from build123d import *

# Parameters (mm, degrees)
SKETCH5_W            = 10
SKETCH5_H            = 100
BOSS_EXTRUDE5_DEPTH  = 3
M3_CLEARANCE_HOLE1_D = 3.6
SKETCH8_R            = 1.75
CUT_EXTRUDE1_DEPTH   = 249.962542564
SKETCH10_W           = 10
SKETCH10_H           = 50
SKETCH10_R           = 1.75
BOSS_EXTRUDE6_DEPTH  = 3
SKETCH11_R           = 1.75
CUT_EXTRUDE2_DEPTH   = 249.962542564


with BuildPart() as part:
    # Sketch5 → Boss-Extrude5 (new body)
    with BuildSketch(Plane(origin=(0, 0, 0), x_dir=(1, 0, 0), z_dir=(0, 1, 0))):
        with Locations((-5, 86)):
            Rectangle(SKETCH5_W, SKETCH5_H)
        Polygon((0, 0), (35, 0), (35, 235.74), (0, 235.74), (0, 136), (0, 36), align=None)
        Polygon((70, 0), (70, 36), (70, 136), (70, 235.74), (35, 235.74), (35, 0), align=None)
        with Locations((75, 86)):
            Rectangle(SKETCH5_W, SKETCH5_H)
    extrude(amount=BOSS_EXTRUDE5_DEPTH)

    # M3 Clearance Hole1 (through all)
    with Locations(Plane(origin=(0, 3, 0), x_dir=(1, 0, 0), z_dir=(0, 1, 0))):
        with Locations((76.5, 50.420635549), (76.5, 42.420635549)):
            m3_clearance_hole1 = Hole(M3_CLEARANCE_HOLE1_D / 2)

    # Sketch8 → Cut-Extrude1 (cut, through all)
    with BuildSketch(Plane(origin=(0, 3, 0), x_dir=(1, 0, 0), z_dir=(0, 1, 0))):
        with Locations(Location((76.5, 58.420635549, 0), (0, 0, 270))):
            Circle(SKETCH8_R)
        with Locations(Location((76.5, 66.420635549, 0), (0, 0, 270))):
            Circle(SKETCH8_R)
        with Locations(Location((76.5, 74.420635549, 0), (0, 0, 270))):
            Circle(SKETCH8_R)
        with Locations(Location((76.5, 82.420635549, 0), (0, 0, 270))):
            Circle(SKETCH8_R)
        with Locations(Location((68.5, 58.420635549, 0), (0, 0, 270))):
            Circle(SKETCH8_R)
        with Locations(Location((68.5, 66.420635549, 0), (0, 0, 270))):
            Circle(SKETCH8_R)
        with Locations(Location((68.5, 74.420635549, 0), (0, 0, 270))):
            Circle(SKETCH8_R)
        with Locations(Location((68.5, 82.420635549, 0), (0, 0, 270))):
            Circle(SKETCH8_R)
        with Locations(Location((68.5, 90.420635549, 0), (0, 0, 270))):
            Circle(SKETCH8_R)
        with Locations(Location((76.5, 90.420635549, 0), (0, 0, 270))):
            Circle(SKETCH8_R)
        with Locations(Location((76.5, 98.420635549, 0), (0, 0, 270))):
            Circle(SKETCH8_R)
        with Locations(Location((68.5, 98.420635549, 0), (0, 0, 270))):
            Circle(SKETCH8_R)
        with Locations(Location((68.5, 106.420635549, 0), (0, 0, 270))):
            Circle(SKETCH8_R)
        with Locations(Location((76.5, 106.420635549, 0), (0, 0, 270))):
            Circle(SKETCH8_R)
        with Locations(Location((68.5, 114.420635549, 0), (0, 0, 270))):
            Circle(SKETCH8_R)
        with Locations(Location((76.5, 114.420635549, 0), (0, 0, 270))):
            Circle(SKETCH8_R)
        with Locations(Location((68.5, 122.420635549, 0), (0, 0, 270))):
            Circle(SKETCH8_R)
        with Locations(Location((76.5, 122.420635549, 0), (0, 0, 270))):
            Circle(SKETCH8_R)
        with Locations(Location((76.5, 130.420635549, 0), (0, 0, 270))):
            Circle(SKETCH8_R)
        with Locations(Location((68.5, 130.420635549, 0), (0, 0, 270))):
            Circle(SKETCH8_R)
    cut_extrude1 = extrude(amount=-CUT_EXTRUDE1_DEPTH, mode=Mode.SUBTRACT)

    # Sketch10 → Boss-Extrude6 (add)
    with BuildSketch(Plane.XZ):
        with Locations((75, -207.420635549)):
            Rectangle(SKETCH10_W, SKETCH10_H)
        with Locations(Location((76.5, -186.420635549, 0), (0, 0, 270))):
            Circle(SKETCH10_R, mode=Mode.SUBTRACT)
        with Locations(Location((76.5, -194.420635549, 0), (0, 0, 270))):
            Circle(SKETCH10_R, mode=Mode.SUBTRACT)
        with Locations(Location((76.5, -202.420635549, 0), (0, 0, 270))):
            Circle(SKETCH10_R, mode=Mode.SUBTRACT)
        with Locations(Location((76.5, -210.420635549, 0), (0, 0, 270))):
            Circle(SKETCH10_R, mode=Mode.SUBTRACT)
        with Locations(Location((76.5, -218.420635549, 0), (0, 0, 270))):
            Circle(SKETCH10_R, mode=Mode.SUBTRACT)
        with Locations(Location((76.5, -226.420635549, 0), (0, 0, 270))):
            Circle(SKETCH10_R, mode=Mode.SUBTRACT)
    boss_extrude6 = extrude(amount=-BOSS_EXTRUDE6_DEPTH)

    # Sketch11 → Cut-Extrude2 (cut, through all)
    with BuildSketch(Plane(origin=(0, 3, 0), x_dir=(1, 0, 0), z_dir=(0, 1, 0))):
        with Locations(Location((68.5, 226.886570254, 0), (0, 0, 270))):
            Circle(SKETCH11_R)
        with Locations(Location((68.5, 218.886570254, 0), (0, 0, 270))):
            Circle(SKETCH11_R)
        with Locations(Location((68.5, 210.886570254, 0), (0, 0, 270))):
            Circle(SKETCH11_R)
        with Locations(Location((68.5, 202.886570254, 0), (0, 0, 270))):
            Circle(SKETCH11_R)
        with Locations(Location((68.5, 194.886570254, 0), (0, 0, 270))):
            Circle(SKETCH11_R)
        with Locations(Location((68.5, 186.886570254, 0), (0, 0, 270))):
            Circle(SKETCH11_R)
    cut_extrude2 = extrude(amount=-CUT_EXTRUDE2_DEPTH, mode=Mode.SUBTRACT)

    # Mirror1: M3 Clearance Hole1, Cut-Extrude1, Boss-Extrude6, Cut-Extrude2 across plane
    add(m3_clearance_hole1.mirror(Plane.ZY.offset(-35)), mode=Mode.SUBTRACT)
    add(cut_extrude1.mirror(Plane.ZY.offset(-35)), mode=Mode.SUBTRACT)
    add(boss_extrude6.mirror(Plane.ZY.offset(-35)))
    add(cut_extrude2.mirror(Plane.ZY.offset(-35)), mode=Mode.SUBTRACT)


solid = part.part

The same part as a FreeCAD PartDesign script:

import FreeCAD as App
import Part
import Sketcher

V = App.Vector

doc = App.newDocument("Part")
body = doc.addObject("PartDesign::Body", "Body")

# Sketch on XZ plane
sketch1 = body.newObject("Sketcher::SketchObject", "Sketch")
sketch1.AttachmentSupport = (doc.getObject("XZ_Plane"), [""])
sketch1.MapMode = "FlatFace"
sketch1.addGeometry([
    Part.LineSegment(V(-10, -136, 0), V(-10, -36, 0)),  # 0
    Part.LineSegment(V(-10, -36, 0), V(0, -36, 0)),  # 1
    Part.LineSegment(V(0, -36, 0), V(0, 0, 0)),  # 2
    Part.LineSegment(V(0, 0, 0), V(70, 0, 0)),  # 3
    Part.LineSegment(V(70, 0, 0), V(70, -36, 0)),  # 4
    Part.LineSegment(V(70, -36, 0), V(80, -36, 0)),  # 5
    Part.LineSegment(V(80, -36, 0), V(80, -136, 0)),  # 6
    Part.LineSegment(V(80, -136, 0), V(70, -136, 0)),  # 7
    Part.LineSegment(V(70, -136, 0), V(70, -236, 0)),  # 8
    Part.LineSegment(V(70, -236, 0), V(0, -236, 0)),  # 9
    Part.LineSegment(V(0, -236, 0), V(0, -136, 0)),  # 10
    Part.LineSegment(V(0, -136, 0), V(-10, -136, 0)),  # 11
], False)
sketch1.addConstraint([
    Sketcher.Constraint("Coincident", 0, 2, 1, 1),
    Sketcher.Constraint("Coincident", 1, 2, 2, 1),
    Sketcher.Constraint("Coincident", 2, 2, 3, 1),
    Sketcher.Constraint("Coincident", 3, 2, 4, 1),
    Sketcher.Constraint("Coincident", 4, 2, 5, 1),
    Sketcher.Constraint("Coincident", 5, 2, 6, 1),
    Sketcher.Constraint("Coincident", 6, 2, 7, 1),
    Sketcher.Constraint("Coincident", 7, 2, 8, 1),
    Sketcher.Constraint("Coincident", 8, 2, 9, 1),
    Sketcher.Constraint("Coincident", 9, 2, 10, 1),
    Sketcher.Constraint("Coincident", 10, 2, 11, 1),
    Sketcher.Constraint("Coincident", 11, 2, 0, 1),
    Sketcher.Constraint("Vertical", 0),
    Sketcher.Constraint("Horizontal", 1),
    Sketcher.Constraint("Vertical", 2),
    Sketcher.Constraint("Horizontal", 3),
    Sketcher.Constraint("Vertical", 4),
    Sketcher.Constraint("Horizontal", 5),
    Sketcher.Constraint("Vertical", 6),
    Sketcher.Constraint("Horizontal", 7),
    Sketcher.Constraint("Vertical", 8),
    Sketcher.Constraint("Horizontal", 9),
    Sketcher.Constraint("Vertical", 10),
    Sketcher.Constraint("Horizontal", 11),
    Sketcher.Constraint("Coincident", 2, 2, -1, 1),
    Sketcher.Constraint("PointOnObject", 9, 2, -2),
    Sketcher.Constraint("Horizontal", 1, 2, 4, 2),
    Sketcher.Constraint("Horizontal", 7, 2, 10, 2),
    Sketcher.Constraint("Vertical", 4, 2, 7, 2),
    Sketcher.Constraint("Equal", 1, 5),
    Sketcher.Constraint("DistanceX", 1, 1, 1, 2, 10.0),
    Sketcher.Constraint("DistanceX", 3, 1, 3, 2, 70.0),
    Sketcher.Constraint("DistanceY", 0, 1, 0, 2, 100.0),
    Sketcher.Constraint("DistanceY", 2, 1, 2, 2, 36.0),
    Sketcher.Constraint("DistanceY", 8, 2, 8, 1, 99.74),
])
pad1 = body.newObject("PartDesign::Pad", "Pad")
pad1.Profile = sketch1
pad1.Length = 3
pad1.Reversed = True

# Sketch on XZ plane
sketch2 = body.newObject("Sketcher::SketchObject", "Sketch001")
sketch2.AttachmentSupport = (doc.getObject("XZ_Plane"), [""])
sketch2.MapMode = "FlatFace"
sketch2.AttachmentOffset = App.Placement(V(0, 0, -3), App.Rotation())
sketch2.addGeometry([
    Part.Circle(V(76.5, -50.4, 0), V(0, 0, 1), 1.8),
    Part.Circle(V(76.5, -42.4, 0), V(0, 0, 1), 1.8),
], False)
sketch2.addConstraint([
    Sketcher.Constraint("Equal", 0, 1),
    Sketcher.Constraint("Vertical", 0, 3, 1, 3),
    Sketcher.Constraint("Diameter", 0, 3.6),
    Sketcher.Constraint("DistanceY", 0, 3, 1, 3, 8.0),
    Sketcher.Constraint("DistanceX", -1, 1, 0, 3, 76.5),
    Sketcher.Constraint("DistanceY", 0, 3, -1, 1, 50.420636),
])
doc.recompute()
hole = body.newObject("PartDesign::Hole", "Hole")
hole.Profile = sketch2
hole.ThreadType = "None"
hole.Diameter = 3.6
hole.DepthType = "ThroughAll"
hole.Reversed = True

# Sketch on XZ plane
sketch3 = body.newObject("Sketcher::SketchObject", "Sketch002")
sketch3.AttachmentSupport = (doc.getObject("XZ_Plane"), [""])
sketch3.MapMode = "FlatFace"
sketch3.AttachmentOffset = App.Placement(V(0, 0, -3), App.Rotation())
sketch3.addGeometry([
    Part.Circle(V(76.5, -58.4, 0), V(0, 0, 1), 1.8),  # 0
    Part.Circle(V(76.5, -66.4, 0), V(0, 0, 1), 1.8),  # 1
    Part.Circle(V(76.5, -74.4, 0), V(0, 0, 1), 1.8),  # 2
    Part.Circle(V(76.5, -82.4, 0), V(0, 0, 1), 1.8),  # 3
    Part.Circle(V(68.5, -58.4, 0), V(0, 0, 1), 1.8),  # 4
    Part.Circle(V(68.5, -66.4, 0), V(0, 0, 1), 1.8),  # 5
    Part.Circle(V(68.5, -74.4, 0), V(0, 0, 1), 1.8),  # 6
    Part.Circle(V(68.5, -82.4, 0), V(0, 0, 1), 1.8),  # 7
    Part.Circle(V(68.5, -90.4, 0), V(0, 0, 1), 1.8),  # 8
    Part.Circle(V(76.5, -90.4, 0), V(0, 0, 1), 1.8),  # 9
    Part.Circle(V(76.5, -98.4, 0), V(0, 0, 1), 1.8),  # 10
    Part.Circle(V(68.5, -98.4, 0), V(0, 0, 1), 1.8),  # 11
    Part.Circle(V(68.5, -106.4, 0), V(0, 0, 1), 1.8),  # 12
    Part.Circle(V(76.5, -106.4, 0), V(0, 0, 1), 1.8),  # 13
    Part.Circle(V(68.5, -114.4, 0), V(0, 0, 1), 1.8),  # 14
    Part.Circle(V(76.5, -114.4, 0), V(0, 0, 1), 1.8),  # 15
    Part.Circle(V(68.5, -122.4, 0), V(0, 0, 1), 1.8),  # 16
    Part.Circle(V(76.5, -122.4, 0), V(0, 0, 1), 1.8),  # 17
    Part.Circle(V(76.5, -130.4, 0), V(0, 0, 1), 1.8),  # 18
    Part.Circle(V(68.5, -130.4, 0), V(0, 0, 1), 1.8),  # 19
], False)
sketch3.addConstraint([
    Sketcher.Constraint("Equal", 0, 1),
    Sketcher.Constraint("Equal", 1, 2),
    Sketcher.Constraint("Equal", 2, 3),
    Sketcher.Constraint("Equal", 3, 4),
    Sketcher.Constraint("Equal", 4, 5),
    Sketcher.Constraint("Equal", 5, 6),
    Sketcher.Constraint("Equal", 6, 7),
    Sketcher.Constraint("Equal", 7, 8),
    Sketcher.Constraint("Equal", 8, 9),
    Sketcher.Constraint("Equal", 9, 10),
    Sketcher.Constraint("Equal", 10, 11),
    Sketcher.Constraint("Equal", 11, 12),
    Sketcher.Constraint("Equal", 12, 13),
    Sketcher.Constraint("Equal", 13, 14),
    Sketcher.Constraint("Equal", 14, 15),
    Sketcher.Constraint("Equal", 15, 16),
    Sketcher.Constraint("Equal", 16, 17),
    Sketcher.Constraint("Equal", 17, 18),
    Sketcher.Constraint("Equal", 18, 19),
    Sketcher.Constraint("Horizontal", 0, 3, 4, 3),
    Sketcher.Constraint("Horizontal", 1, 3, 5, 3),
    Sketcher.Constraint("Horizontal", 2, 3, 6, 3),
    Sketcher.Constraint("Horizontal", 3, 3, 7, 3),
    Sketcher.Constraint("Horizontal", 8, 3, 9, 3),
    Sketcher.Constraint("Horizontal", 10, 3, 11, 3),
    Sketcher.Constraint("Horizontal", 12, 3, 13, 3),
    Sketcher.Constraint("Horizontal", 14, 3, 15, 3),
    Sketcher.Constraint("Horizontal", 16, 3, 17, 3),
    Sketcher.Constraint("Horizontal", 18, 3, 19, 3),
    Sketcher.Constraint("Vertical", 0, 3, 1, 3),
    Sketcher.Constraint("Vertical", 1, 3, 2, 3),
    Sketcher.Constraint("Vertical", 2, 3, 3, 3),
    Sketcher.Constraint("Vertical", 4, 3, 5, 3),
    Sketcher.Constraint("Vertical", 5, 3, 6, 3),
    Sketcher.Constraint("Vertical", 6, 3, 7, 3),
    Sketcher.Constraint("Vertical", 7, 3, 8, 3),
    Sketcher.Constraint("Vertical", 3, 3, 9, 3),
    Sketcher.Constraint("Vertical", 9, 3, 10, 3),
    Sketcher.Constraint("Vertical", 8, 3, 11, 3),
    Sketcher.Constraint("Vertical", 11, 3, 12, 3),
    Sketcher.Constraint("Vertical", 10, 3, 13, 3),
    Sketcher.Constraint("Vertical", 12, 3, 14, 3),
    Sketcher.Constraint("Vertical", 13, 3, 15, 3),
    Sketcher.Constraint("Vertical", 14, 3, 16, 3),
    Sketcher.Constraint("Vertical", 15, 3, 17, 3),
    Sketcher.Constraint("Vertical", 17, 3, 18, 3),
    Sketcher.Constraint("Vertical", 16, 3, 19, 3),
    Sketcher.Constraint("Diameter", 0, 3.5),
    Sketcher.Constraint("DistanceY", 1, 3, 0, 3, 8.0),
    Sketcher.Constraint("DistanceY", 2, 3, 1, 3, 8.0),
    Sketcher.Constraint("DistanceY", 3, 3, 2, 3, 8.0),
    Sketcher.Constraint("DistanceX", 4, 3, 0, 3, 8.0),
    Sketcher.Constraint("DistanceY", 8, 3, 7, 3, 8.0),
    Sketcher.Constraint("DistanceY", 10, 3, 9, 3, 8.0),
    Sketcher.Constraint("DistanceY", 12, 3, 11, 3, 8.0),
    Sketcher.Constraint("DistanceY", 14, 3, 12, 3, 8.0),
    Sketcher.Constraint("DistanceY", 16, 3, 14, 3, 8.0),
    Sketcher.Constraint("DistanceY", 18, 3, 17, 3, 8.0),
    Sketcher.Constraint("DistanceX", -1, 1, 0, 3, 76.5),
    Sketcher.Constraint("DistanceY", 0, 3, -1, 1, 58.420636),
])
pocket1 = body.newObject("PartDesign::Pocket", "Pocket")
pocket1.Profile = sketch3
pocket1.Type = "ThroughAll"
pocket1.Reversed = True

# Sketch on XZ plane
sketch4 = body.newObject("Sketcher::SketchObject", "Sketch003")
sketch4.AttachmentSupport = (doc.getObject("XZ_Plane"), [""])
sketch4.MapMode = "FlatFace"
sketch4.addGeometry([
    Part.LineSegment(V(70, -182.4, 0), V(70, -232.4, 0)),  # 0
    Part.LineSegment(V(70, -232.4, 0), V(80, -232.4, 0)),  # 1
    Part.LineSegment(V(80, -232.4, 0), V(80, -182.4, 0)),  # 2
    Part.LineSegment(V(80, -182.4, 0), V(70, -182.4, 0)),  # 3
    Part.Circle(V(76.5, -226.4, 0), V(0, 0, 1), 1.8),  # 4
    Part.Circle(V(76.5, -218.4, 0), V(0, 0, 1), 1.8),  # 5
    Part.Circle(V(76.5, -210.4, 0), V(0, 0, 1), 1.8),  # 6
    Part.Circle(V(76.5, -202.4, 0), V(0, 0, 1), 1.8),  # 7
    Part.Circle(V(76.5, -194.4, 0), V(0, 0, 1), 1.8),  # 8
    Part.Circle(V(76.5, -186.4, 0), V(0, 0, 1), 1.8),  # 9
], False)
sketch4.addConstraint([
    Sketcher.Constraint("Coincident", 0, 2, 1, 1),
    Sketcher.Constraint("Coincident", 1, 2, 2, 1),
    Sketcher.Constraint("Coincident", 2, 2, 3, 1),
    Sketcher.Constraint("Coincident", 3, 2, 0, 1),
    Sketcher.Constraint("Vertical", 0),
    Sketcher.Constraint("Horizontal", 1),
    Sketcher.Constraint("Vertical", 2),
    Sketcher.Constraint("Horizontal", 3),
    Sketcher.Constraint("Equal", 4, 5),
    Sketcher.Constraint("Equal", 5, 6),
    Sketcher.Constraint("Equal", 6, 7),
    Sketcher.Constraint("Equal", 7, 8),
    Sketcher.Constraint("Equal", 8, 9),
    Sketcher.Constraint("Vertical", 4, 3, 5, 3),
    Sketcher.Constraint("Vertical", 5, 3, 6, 3),
    Sketcher.Constraint("Vertical", 6, 3, 7, 3),
    Sketcher.Constraint("Vertical", 7, 3, 8, 3),
    Sketcher.Constraint("Vertical", 8, 3, 9, 3),
    Sketcher.Constraint("Diameter", 4, 3.5),
    Sketcher.Constraint("DistanceX", 1, 1, 1, 2, 10.0),
    Sketcher.Constraint("DistanceY", 0, 2, 0, 1, 50.0),
    Sketcher.Constraint("DistanceX", -1, 1, 0, 2, 70.0),
    Sketcher.Constraint("DistanceY", 4, 3, 5, 3, 8.0),
    Sketcher.Constraint("DistanceY", 5, 3, 6, 3, 8.0),
    Sketcher.Constraint("DistanceY", 6, 3, 7, 3, 8.0),
    Sketcher.Constraint("DistanceY", 7, 3, 8, 3, 8.0),
    Sketcher.Constraint("DistanceY", 8, 3, 9, 3, 8.0),
    Sketcher.Constraint("DistanceY", 0, 2, 4, 3, 6.0),
    Sketcher.Constraint("DistanceX", -1, 1, 4, 3, 76.5),
    Sketcher.Constraint("DistanceY", 4, 3, -1, 1, 226.420636),
])
pad2 = body.newObject("PartDesign::Pad", "Pad001")
pad2.Profile = sketch4
pad2.Length = 3
pad2.Reversed = True

# Sketch on XZ plane
sketch5 = body.newObject("Sketcher::SketchObject", "Sketch004")
sketch5.AttachmentSupport = (doc.getObject("XZ_Plane"), [""])
sketch5.MapMode = "FlatFace"
sketch5.AttachmentOffset = App.Placement(V(0, 0, -3), App.Rotation())
sketch5.addGeometry([
    Part.Circle(V(68.5, -226.9, 0), V(0, 0, 1), 1.8),  # 0
    Part.Circle(V(68.5, -218.9, 0), V(0, 0, 1), 1.8),  # 1
    Part.Circle(V(68.5, -210.9, 0), V(0, 0, 1), 1.8),  # 2
    Part.Circle(V(68.5, -202.9, 0), V(0, 0, 1), 1.8),  # 3
    Part.Circle(V(68.5, -194.9, 0), V(0, 0, 1), 1.8),  # 4
    Part.Circle(V(68.5, -186.9, 0), V(0, 0, 1), 1.8),  # 5
], False)
sketch5.addConstraint([
    Sketcher.Constraint("Equal", 0, 1),
    Sketcher.Constraint("Equal", 1, 2),
    Sketcher.Constraint("Equal", 2, 3),
    Sketcher.Constraint("Equal", 3, 4),
    Sketcher.Constraint("Equal", 4, 5),
    Sketcher.Constraint("Vertical", 0, 3, 1, 3),
    Sketcher.Constraint("Vertical", 1, 3, 2, 3),
    Sketcher.Constraint("Vertical", 2, 3, 3, 3),
    Sketcher.Constraint("Vertical", 3, 3, 4, 3),
    Sketcher.Constraint("Vertical", 4, 3, 5, 3),
    Sketcher.Constraint("Diameter", 0, 3.5),
    Sketcher.Constraint("DistanceY", 0, 3, 1, 3, 8.0),
    Sketcher.Constraint("DistanceY", 1, 3, 2, 3, 8.0),
    Sketcher.Constraint("DistanceY", 2, 3, 3, 3, 8.0),
    Sketcher.Constraint("DistanceY", 3, 3, 4, 3, 8.0),
    Sketcher.Constraint("DistanceY", 4, 3, 5, 3, 8.0),
    Sketcher.Constraint("DistanceX", -1, 1, 0, 3, 68.5),
    Sketcher.Constraint("DistanceY", 0, 3, -1, 1, 226.88657),
])
pocket2 = body.newObject("PartDesign::Pocket", "Pocket001")
pocket2.Profile = sketch5
pocket2.Type = "ThroughAll"
pocket2.Reversed = True
doc.recompute()

datumplane = body.newObject("PartDesign::Plane", "DatumPlane")
datumplane.AttachmentSupport = (doc.getObject("YZ_Plane"), [""])
datumplane.MapMode = "FlatFace"
datumplane.AttachmentOffset = App.Placement(V(0, 0, 35), App.Rotation())
mirrored = body.newObject("PartDesign::Mirrored", "Mirrored")
mirrored.Originals = [hole, pocket1, pad2, pocket2]
mirrored.MirrorPlane = (datumplane, [""])
body.Tip = mirrored

doc.recompute()
